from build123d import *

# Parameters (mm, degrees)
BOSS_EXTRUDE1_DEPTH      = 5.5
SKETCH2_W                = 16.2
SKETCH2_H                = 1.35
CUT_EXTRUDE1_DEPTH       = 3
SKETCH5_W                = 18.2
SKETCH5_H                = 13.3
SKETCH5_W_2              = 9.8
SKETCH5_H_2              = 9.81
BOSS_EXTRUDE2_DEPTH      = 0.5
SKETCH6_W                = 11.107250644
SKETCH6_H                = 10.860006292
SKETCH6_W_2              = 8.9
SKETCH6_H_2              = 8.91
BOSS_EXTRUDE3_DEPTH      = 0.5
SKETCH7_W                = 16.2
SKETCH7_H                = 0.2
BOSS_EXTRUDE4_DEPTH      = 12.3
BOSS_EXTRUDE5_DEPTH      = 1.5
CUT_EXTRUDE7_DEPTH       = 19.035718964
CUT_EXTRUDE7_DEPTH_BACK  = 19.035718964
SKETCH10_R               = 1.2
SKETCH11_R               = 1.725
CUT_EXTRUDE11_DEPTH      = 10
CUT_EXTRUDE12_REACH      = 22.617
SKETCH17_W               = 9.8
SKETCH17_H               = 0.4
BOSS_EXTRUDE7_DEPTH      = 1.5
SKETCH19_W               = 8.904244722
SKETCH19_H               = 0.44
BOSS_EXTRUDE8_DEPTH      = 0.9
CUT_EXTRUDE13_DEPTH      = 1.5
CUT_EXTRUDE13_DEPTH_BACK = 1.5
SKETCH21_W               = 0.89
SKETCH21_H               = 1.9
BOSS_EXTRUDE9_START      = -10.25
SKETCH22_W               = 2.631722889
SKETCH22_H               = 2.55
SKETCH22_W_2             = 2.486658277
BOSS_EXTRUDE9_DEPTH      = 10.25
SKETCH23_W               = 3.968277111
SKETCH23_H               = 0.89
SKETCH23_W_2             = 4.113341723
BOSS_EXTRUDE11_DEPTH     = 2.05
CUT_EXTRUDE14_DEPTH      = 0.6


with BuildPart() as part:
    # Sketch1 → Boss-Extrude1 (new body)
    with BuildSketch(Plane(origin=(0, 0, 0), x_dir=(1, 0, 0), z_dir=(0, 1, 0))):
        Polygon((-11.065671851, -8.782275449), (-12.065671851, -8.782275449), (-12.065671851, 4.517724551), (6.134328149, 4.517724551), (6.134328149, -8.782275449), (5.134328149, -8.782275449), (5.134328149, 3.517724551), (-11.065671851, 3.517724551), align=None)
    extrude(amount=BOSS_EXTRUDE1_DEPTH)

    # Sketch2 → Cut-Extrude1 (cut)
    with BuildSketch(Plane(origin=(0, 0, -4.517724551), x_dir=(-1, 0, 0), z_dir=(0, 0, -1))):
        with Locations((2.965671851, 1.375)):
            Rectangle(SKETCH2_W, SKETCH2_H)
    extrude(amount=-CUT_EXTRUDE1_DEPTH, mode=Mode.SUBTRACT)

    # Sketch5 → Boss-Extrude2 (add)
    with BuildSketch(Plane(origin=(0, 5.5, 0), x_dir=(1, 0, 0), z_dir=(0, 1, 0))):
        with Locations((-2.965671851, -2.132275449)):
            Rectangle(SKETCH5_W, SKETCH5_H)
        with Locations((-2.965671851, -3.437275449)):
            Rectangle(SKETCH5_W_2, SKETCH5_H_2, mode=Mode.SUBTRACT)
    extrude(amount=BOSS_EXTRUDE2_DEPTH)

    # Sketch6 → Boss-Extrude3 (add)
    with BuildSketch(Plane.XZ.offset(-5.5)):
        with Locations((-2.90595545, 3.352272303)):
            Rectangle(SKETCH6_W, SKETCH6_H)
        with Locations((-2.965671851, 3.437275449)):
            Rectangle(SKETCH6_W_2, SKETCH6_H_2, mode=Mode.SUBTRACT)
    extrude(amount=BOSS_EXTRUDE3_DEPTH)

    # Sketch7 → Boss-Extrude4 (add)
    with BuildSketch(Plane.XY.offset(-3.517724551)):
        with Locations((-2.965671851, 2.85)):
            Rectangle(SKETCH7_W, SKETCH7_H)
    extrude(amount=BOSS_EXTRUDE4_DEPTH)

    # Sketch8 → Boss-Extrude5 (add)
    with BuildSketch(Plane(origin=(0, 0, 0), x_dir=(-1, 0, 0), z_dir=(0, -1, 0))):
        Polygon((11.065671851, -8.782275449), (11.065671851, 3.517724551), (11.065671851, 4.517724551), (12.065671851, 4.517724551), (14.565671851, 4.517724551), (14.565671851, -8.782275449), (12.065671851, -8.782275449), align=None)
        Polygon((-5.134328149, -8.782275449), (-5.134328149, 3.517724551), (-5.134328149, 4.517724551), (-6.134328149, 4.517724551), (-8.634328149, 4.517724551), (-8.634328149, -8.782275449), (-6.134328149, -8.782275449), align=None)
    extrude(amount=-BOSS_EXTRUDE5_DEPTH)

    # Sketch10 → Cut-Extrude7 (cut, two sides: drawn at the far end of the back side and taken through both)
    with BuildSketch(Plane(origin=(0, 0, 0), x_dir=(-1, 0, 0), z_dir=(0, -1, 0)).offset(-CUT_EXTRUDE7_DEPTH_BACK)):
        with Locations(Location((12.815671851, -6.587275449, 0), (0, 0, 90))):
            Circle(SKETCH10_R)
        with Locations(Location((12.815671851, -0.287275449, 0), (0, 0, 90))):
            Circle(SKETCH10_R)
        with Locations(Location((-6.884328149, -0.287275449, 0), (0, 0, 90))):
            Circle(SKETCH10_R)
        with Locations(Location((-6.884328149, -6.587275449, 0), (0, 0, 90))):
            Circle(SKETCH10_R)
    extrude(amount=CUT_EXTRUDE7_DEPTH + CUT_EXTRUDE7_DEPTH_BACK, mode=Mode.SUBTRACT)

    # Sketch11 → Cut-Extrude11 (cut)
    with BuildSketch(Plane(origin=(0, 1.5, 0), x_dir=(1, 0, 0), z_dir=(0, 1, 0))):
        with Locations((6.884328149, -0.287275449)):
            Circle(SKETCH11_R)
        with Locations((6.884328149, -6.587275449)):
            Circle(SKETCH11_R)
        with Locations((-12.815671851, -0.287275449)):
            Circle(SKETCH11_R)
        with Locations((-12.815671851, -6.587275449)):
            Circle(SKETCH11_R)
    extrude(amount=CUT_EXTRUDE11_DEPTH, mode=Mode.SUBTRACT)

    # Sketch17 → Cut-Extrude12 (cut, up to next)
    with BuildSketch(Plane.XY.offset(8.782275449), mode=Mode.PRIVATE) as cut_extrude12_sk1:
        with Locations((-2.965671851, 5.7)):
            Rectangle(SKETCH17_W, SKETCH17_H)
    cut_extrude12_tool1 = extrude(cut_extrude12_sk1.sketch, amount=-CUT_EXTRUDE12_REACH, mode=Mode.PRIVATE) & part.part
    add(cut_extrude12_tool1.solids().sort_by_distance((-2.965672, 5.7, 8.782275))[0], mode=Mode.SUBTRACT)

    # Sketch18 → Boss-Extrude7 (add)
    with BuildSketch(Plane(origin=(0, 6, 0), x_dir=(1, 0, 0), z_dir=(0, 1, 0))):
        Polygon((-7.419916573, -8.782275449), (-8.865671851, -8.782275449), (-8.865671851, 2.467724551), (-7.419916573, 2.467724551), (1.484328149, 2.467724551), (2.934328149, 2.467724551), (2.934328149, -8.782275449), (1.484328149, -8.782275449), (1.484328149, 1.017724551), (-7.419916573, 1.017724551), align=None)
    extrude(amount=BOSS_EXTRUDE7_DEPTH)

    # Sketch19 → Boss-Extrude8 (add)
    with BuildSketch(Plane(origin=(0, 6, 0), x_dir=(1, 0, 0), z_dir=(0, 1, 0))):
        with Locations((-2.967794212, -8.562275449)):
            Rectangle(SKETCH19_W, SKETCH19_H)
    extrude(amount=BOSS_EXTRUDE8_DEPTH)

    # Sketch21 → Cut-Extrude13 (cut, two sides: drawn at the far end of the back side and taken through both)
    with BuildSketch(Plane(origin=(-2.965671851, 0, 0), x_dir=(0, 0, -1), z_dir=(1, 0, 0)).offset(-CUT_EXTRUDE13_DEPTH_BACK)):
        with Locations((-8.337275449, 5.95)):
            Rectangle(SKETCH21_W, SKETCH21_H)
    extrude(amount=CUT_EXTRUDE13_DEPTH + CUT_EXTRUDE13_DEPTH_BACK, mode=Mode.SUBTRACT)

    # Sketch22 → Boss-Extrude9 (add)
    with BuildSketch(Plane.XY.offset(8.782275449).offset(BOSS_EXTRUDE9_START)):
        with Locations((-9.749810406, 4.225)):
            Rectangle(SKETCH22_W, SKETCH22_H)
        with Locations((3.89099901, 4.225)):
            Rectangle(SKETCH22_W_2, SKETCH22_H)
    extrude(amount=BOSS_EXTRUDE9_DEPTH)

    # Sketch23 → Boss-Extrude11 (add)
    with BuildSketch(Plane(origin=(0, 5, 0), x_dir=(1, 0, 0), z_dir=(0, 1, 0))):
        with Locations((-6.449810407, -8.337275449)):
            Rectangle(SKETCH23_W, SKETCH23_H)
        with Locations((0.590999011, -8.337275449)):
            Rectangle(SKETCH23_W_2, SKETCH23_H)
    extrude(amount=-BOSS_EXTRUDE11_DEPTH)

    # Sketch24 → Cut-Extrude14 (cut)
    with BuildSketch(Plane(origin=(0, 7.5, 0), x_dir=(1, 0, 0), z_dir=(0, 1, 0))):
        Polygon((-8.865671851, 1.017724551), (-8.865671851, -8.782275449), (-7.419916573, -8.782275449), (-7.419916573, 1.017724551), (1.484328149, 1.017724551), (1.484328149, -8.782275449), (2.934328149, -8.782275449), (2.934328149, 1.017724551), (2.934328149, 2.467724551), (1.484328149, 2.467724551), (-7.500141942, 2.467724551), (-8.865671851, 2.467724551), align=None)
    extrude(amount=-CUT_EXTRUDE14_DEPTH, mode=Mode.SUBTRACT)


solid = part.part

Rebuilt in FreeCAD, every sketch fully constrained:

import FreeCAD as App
import Part
import Sketcher

doc = App.newDocument("Part")
body = doc.addObject("PartDesign::Body", "Body")

sketch1 = body.newObject("Sketcher::SketchObject", "Sketch")
sketch1.AttachmentSupport = (doc.getObject("XZ_Plane"), [""])
sketch1.MapMode = "FlatFace"
sketch1.addGeometry([
    Part.LineSegment(App.Vector(-12.1, 8.8, 0), App.Vector(-11.1, 8.8, 0)),
    Part.LineSegment(App.Vector(-11.1, 8.8, 0), App.Vector(-11.1, -3.5, 0)),
    Part.LineSegment(App.Vector(-11.1, -3.5, 0), App.Vector(5.1, -3.5, 0)),
    Part.LineSegment(App.Vector(5.1, -3.5, 0), App.Vector(5.1, 8.8, 0)),
    Part.LineSegment(App.Vector(5.1, 8.8, 0), App.Vector(6.1, 8.8, 0)),
    Part.LineSegment(App.Vector(6.1, 8.8, 0), App.Vector(6.1, -4.5, 0)),
    Part.LineSegment(App.Vector(6.1, -4.5, 0), App.Vector(-12.1, -4.5, 0)),
    Part.LineSegment(App.Vector(-12.1, -4.5, 0), App.Vector(-12.1, 8.8, 0)),
], False)
sketch1.addConstraint([
    Sketcher.Constraint("Coincident", 0, 2, 1, 1),
    Sketcher.Constraint("Coincident", 1, 2, 2, 1),
    Sketcher.Constraint("Coincident", 2, 2, 3, 1),
    Sketcher.Constraint("Coincident", 3, 2, 4, 1),
    Sketcher.Constraint("Coincident", 4, 2, 5, 1),
    Sketcher.Constraint("Coincident", 5, 2, 6, 1),
    Sketcher.Constraint("Coincident", 6, 2, 7, 1),
    Sketcher.Constraint("Coincident", 7, 2, 0, 1),
    Sketcher.Constraint("Horizontal", 0),
    Sketcher.Constraint("Vertical", 1),
    Sketcher.Constraint("Horizontal", 2),
    Sketcher.Constraint("Vertical", 3),
    Sketcher.Constraint("Horizontal", 4),
    Sketcher.Constraint("Vertical", 5),
    Sketcher.Constraint("Horizontal", 6),
    Sketcher.Constraint("Vertical", 7),
    Sketcher.Constraint("Horizontal", 0, 2, 3, 2),
    Sketcher.Constraint("Equal", 0, 4),
    Sketcher.Constraint("DistanceX", 0, 1, 0, 2, 1.0),
    Sketcher.Constraint("DistanceX", 2, 1, 2, 2, 16.2),
    Sketcher.Constraint("DistanceY", 1, 2, 1, 1, 12.3),
    Sketcher.Constraint("DistanceY", 5, 2, 5, 1, 13.3),
    Sketcher.Constraint("DistanceX", 0, 2, -1, 1, 11.065672),
    Sketcher.Constraint("DistanceY", -1, 1, 0, 2, 8.782275),
])
pad1 = body.newObject("PartDesign::Pad", "Pad")
pad1.Profile = sketch1
pad1.Length = 5.5
pad1.Reversed = True

sketch2 = body.newObject("Sketcher::SketchObject", "Sketch001")
sketch2.AttachmentSupport = (doc.getObject("XY_Plane"), [""])
sketch2.MapMode = "FlatFace"
sketch2.AttachmentOffset = App.Placement(App.Vector(0, 0, -4.517725), App.Rotation())
sketch2.addGeometry([
    Part.LineSegment(App.Vector(5.1, 2, 0), App.Vector(5.1, 0.7, 0)),
    Part.LineSegment(App.Vector(5.1, 0.7, 0), App.Vector(-11.1, 0.7, 0)),
    Part.LineSegment(App.Vector(-11.1, 0.7, 0), App.Vector(-11.1, 2, 0)),
    Part.LineSegment(App.Vector(-11.1, 2, 0), App.Vector(5.1, 2, 0)),
], False)
sketch2.addConstraint([
    Sketcher.Constraint("Coincident", 0, 2, 1, 1),
    Sketcher.Constraint("Coincident", 1, 2, 2, 1),
    Sketcher.Constraint("Coincident", 2, 2, 3, 1),
    Sketcher.Constraint("Coincident", 3, 2, 0, 1),
    Sketcher.Constraint("Vertical", 0),
    Sketcher.Constraint("Horizontal", 1),
    Sketcher.Constraint("Vertical", 2),
    Sketcher.Constraint("Horizontal", 3),
    Sketcher.Constraint("DistanceX", 1, 2, 1, 1, 16.2),
    Sketcher.Constraint("DistanceY", 0, 2, 0, 1, 1.35),
    Sketcher.Constraint("DistanceY", -1, 1, 0, 2, 0.7),
    Sketcher.Constraint("DistanceX", -1, 1, 0, 2, 5.134328),
])
pocket1 = body.newObject("PartDesign::Pocket", "Pocket")
pocket1.Profile = sketch2
pocket1.Length = 3
pocket1.Reversed = True

sketch3 = body.newObject("Sketcher::SketchObject", "Sketch002")
sketch3.AttachmentSupport = (doc.getObject("XZ_Plane"), [""])
sketch3.MapMode = "FlatFace"
sketch3.AttachmentOffset = App.Placement(App.Vector(0, 0, -5.5), App.Rotation())
sketch3.addGeometry([
    Part.LineSegment(App.Vector(-12, -5, 0), App.Vector(-12, 9, 0)),
    Part.LineSegment(App.Vector(-12, 9, 0), App.Vector(6, 9, 0)),
    Part.LineSegment(App.Vector(6, 9, 0), App.Vector(6, -5, 0)),
    Part.LineSegment(App.Vector(6, -5, 0), App.Vector(-12, -5, 0)),
    Part.LineSegment(App.Vector(2, 8, 0), App.Vector(-8, 8, 0)),
    Part.LineSegment(App.Vector(-8, 8, 0), App.Vector(-8, -1, 0)),
    Part.LineSegment(App.Vector(-8, -1, 0), App.Vector(2, -1, 0)),
    Part.LineSegment(App.Vector(2, -1, 0), App.Vector(2, 8, 0)),
], False)
sketch3.addConstraint([
    Sketcher.Constraint("Coincident", 0, 2, 1, 1),
    Sketcher.Constraint("Coincident", 1, 2, 2, 1),
    Sketcher.Constraint("Coincident", 2, 2, 3, 1),
    Sketcher.Constraint("Coincident", 3, 2, 0, 1),
    Sketcher.Constraint("Coincident", 4, 2, 5, 1),
    Sketcher.Constraint("Coincident", 5, 2, 6, 1),
    Sketcher.Constraint("Coincident", 6, 2, 7, 1),
    Sketcher.Constraint("Coincident", 7, 2, 4, 1),
    Sketcher.Constraint("Vertical", 0),
    Sketcher.Constraint("Horizontal", 1),
    Sketcher.Constraint("Vertical", 2),
    Sketcher.Constraint("Horizontal", 3),
    Sketcher.Constraint("Horizontal", 4),
    Sketcher.Constraint("Vertical", 5),
    Sketcher.Constraint("Horizontal", 6),
    Sketcher.Constraint("Vertical", 7),
    Sketcher.Constraint("DistanceX", 1, 1, 1, 2, 18.2),
    Sketcher.Constraint("DistanceX", 4, 2, 4, 1, 9.8),
    Sketcher.Constraint("DistanceY", 0, 1, 0, 2, 13.3),
    Sketcher.Constraint("DistanceX", 4, 2, 1, 2, 14.0),
    Sketcher.Constraint("DistanceY", 5, 2, 5, 1, 9.81),
    Sketcher.Constraint("DistanceY", 4, 2, 0, 2, 0.44),
    Sketcher.Constraint("DistanceX", 0, 2, -1, 1, 12.065672),
    Sketcher.Constraint("DistanceY", -1, 1, 0, 2, 8.782275),
])
pad2 = body.newObject("PartDesign::Pad", "Pad001")
pad2.Profile = sketch3
pad2.Length = 0.5
pad2.Reversed = True

sketch4 = body.newObject("Sketcher::SketchObject", "Sketch003")
sketch4.AttachmentSupport = (doc.getObject("XZ_Plane"), [""])
sketch4.MapMode = "FlatFace"
sketch4.AttachmentOffset = App.Placement(App.Vector(0, 0, -5.5), App.Rotation())
sketch4.addGeometry([
    Part.LineSegment(App.Vector(-8, 9, 0), App.Vector(-8, -2, 0)),
    Part.LineSegment(App.Vector(-8, -2, 0), App.Vector(3, -2, 0)),
    Part.LineSegment(App.Vector(3, -2, 0), App.Vector(3, 9, 0)),
    Part.LineSegment(App.Vector(3, 9, 0), App.Vector(-8, 9, 0)),
    Part.LineSegment(App.Vector(1, -1, 0), App.Vector(-7, -1, 0)),
    Part.LineSegment(App.Vector(-7, -1, 0), App.Vector(-7, 8, 0)),
    Part.LineSegment(App.Vector(-7, 8, 0), App.Vector(1, 8, 0)),
    Part.LineSegment(App.Vector(1, 8, 0), App.Vector(1, -1, 0)),
], False)
sketch4.addConstraint([
    Sketcher.Constraint("Coincident", 0, 2, 1, 1),
    Sketcher.Constraint("Coincident", 1, 2, 2, 1),
    Sketcher.Constraint("Coincident", 2, 2, 3, 1),
    Sketcher.Constraint("Coincident", 3, 2, 0, 1),
    Sketcher.Constraint("Coincident", 4, 2, 5, 1),
    Sketcher.Constraint("Coincident", 5, 2, 6, 1),
    Sketcher.Constraint("Coincident", 6, 2, 7, 1),
    Sketcher.Constraint("Coincident", 7, 2, 4, 1),
    Sketcher.Constraint("Vertical", 0),
    Sketcher.Constraint("Horizontal", 1),
    Sketcher.Constraint("Vertical", 2),
    Sketcher.Constraint("Horizontal", 3),
    Sketcher.Constraint("Horizontal", 4),
    Sketcher.Constraint("Vertical", 5),
    Sketcher.Constraint("Horizontal", 6),
    Sketcher.Constraint("Vertical", 7),
    Sketcher.Constraint("DistanceX", 4, 2, 4, 1, 8.9),
    Sketcher.Constraint("DistanceY", 5, 1, 5, 2, 8.91),
    Sketcher.Constraint("DistanceY", 4, 2, 3, 2, 9.8),
    Sketcher.Constraint("DistanceX", 1, 1, 1, 2, 11.107251),
    Sketcher.Constraint("DistanceY", 0, 2, 0, 1, 10.860006),
    Sketcher.Constraint("DistanceX", 0, 2, -1, 1, 8.459581),
    Sketcher.Constraint("DistanceY", 0, 2, -1, 1, 2.077731),
    Sketcher.Constraint("DistanceX", 4, 2, -1, 1, 7.415672),
])
pad3 = body.newObject("PartDesign::Pad", "Pad002")
pad3.Profile = sketch4
pad3.Length = 0.5

sketch5 = body.newObject("Sketcher::SketchObject", "Sketch004")
sketch5.AttachmentSupport = (doc.getObject("XY_Plane"), [""])
sketch5.MapMode = "FlatFace"
sketch5.AttachmentOffset = App.Placement(App.Vector(0, 0, -3.517725), App.Rotation())
sketch5.addGeometry([
    Part.LineSegment(App.Vector(-11.07, 2.95, 0), App.Vector(-11.07, 2.75, 0)),
    Part.LineSegment(App.Vector(-11.07, 2.75, 0), App.Vector(5.13, 2.75, 0)),
    Part.LineSegment(App.Vector(5.13, 2.75, 0), App.Vector(5.13, 2.95, 0)),
    Part.LineSegment(App.Vector(5.13, 2.95, 0), App.Vector(-11.07, 2.95, 0)),
], False)
sketch5.addConstraint([
    Sketcher.Constraint("Coincident", 0, 2, 1, 1),
    Sketcher.Constraint("Coincident", 1, 2, 2, 1),
    Sketcher.Constraint("Coincident", 2, 2, 3, 1),
    Sketcher.Constraint("Coincident", 3, 2, 0, 1),
    Sketcher.Constraint("Vertical", 0),
    Sketcher.Constraint("Horizontal", 1),
    Sketcher.Constraint("Vertical", 2),
    Sketcher.Constraint("Horizontal", 3),
    Sketcher.Constraint("DistanceX", 1, 1, 1, 2, 16.2),
    Sketcher.Constraint("DistanceY", 0, 2, 0, 1, 0.2),
    Sketcher.Constraint("DistanceY", -1, 1, 0, 2, 2.75),
    Sketcher.Constraint("DistanceX", 0, 2, -1, 1, 11.065672),
])
pad4 = body.newObject("PartDesign::Pad", "Pad003")
pad4.Profile = sketch5
pad4.Length = 12.3

sketch6 = body.newObject("Sketcher::SketchObject", "Sketch005")
sketch6.AttachmentSupport = (doc.getObject("XZ_Plane"), [""])
sketch6.MapMode = "FlatFace"
sketch6.addGeometry([
    Part.LineSegment(App.Vector(-11.1, -4.5, 0), App.Vector(-11.1, 8.8, 0)),
    Part.LineSegment(App.Vector(-11.1, 8.8, 0), App.Vector(-14.6, 8.8, 0)),
    Part.LineSegment(App.Vector(-14.6, 8.8, 0), App.Vector(-14.6, -4.5, 0)),
    Part.LineSegment(App.Vector(-14.6, -4.5, 0), App.Vector(-11.1, -4.5, 0)),
    Part.LineSegment(App.Vector(5.1, 8.8, 0), App.Vector(5.1, -4.5, 0)),
    Part.LineSegment(App.Vector(5.1, -4.5, 0), App.Vector(8.6, -4.5, 0)),
    Part.LineSegment(App.Vector(8.6, -4.5, 0), App.Vector(8.6, 8.8, 0)),
    Part.LineSegment(App.Vector(8.6, 8.8, 0), App.Vector(5.1, 8.8, 0)),
], False)
sketch6.addConstraint([
    Sketcher.Constraint("Coincident", 0, 2, 1, 1),
    Sketcher.Constraint("Coincident", 1, 2, 2, 1),
    Sketcher.Constraint("Coincident", 2, 2, 3, 1),
    Sketcher.Constraint("Coincident", 3, 2, 0, 1),
    Sketcher.Constraint("Coincident", 4, 2, 5, 1),
    Sketcher.Constraint("Coincident", 5, 2, 6, 1),
    Sketcher.Constraint("Coincident", 6, 2, 7, 1),
    Sketcher.Constraint("Coincident", 7, 2, 4, 1),
    Sketcher.Constraint("Vertical", 0),
    Sketcher.Constraint("Horizontal", 1),
    Sketcher.Constraint("Vertical", 2),
    Sketcher.Constraint("Horizontal", 3),
    Sketcher.Constraint("Vertical", 4),
    Sketcher.Constraint("Horizontal", 5),
    Sketcher.Constraint("Vertical", 6),
    Sketcher.Constraint("Horizontal", 7),
    Sketcher.Constraint("Horizontal", 3, 2, 4, 2),
    Sketcher.Constraint("Horizontal", 1, 2, 6, 2),
    Sketcher.Constraint("Equal", 3, 5),
    Sketcher.Constraint("DistanceX", 1, 2, 1, 1, 3.5),
    Sketcher.Constraint("DistanceY", 0, 1, 0, 2, 13.3),
    Sketcher.Constraint("DistanceX", 3, 2, 4, 2, 16.2),
    Sketcher.Constraint("DistanceX", 0, 2, -1, 1, 11.065672),
    Sketcher.Constraint("DistanceY", -1, 1, 0, 2, 8.782275),
])
pad5 = body.newObject("PartDesign::Pad", "Pad004")
pad5.Profile = sketch6
pad5.Length = 1.5
pad5.Reversed = True

sketch7 = body.newObject("Sketcher::SketchObject", "Sketch006")
sketch7.AttachmentSupport = (doc.getObject("XZ_Plane"), [""])
sketch7.MapMode = "FlatFace"
sketch7.addGeometry([
    Part.Circle(App.Vector(-12.8, 6.6, 0), App.Vector(0, 0, 1), 1.2),
    Part.Circle(App.Vector(-12.8, 0.3, 0), App.Vector(0, 0, 1), 1.2),
    Part.Circle(App.Vector(6.9, 0.3, 0), App.Vector(0, 0, 1), 1.2),
    Part.Circle(App.Vector(6.9, 6.6, 0), App.Vector(0, 0, 1), 1.2),
], False)
sketch7.addConstraint([
    Sketcher.Constraint("Equal", 0, 1),
    Sketcher.Constraint("Equal", 1, 2),
    Sketcher.Constraint("Equal", 2, 3),
    Sketcher.Constraint("Horizontal", 1, 3, 2, 3),
    Sketcher.Constraint("Horizontal", 0, 3, 3, 3),
    Sketcher.Constraint("Vertical", 0, 3, 1, 3),
    Sketcher.Constraint("Vertical", 2, 3, 3, 3),
    Sketcher.Constraint("Diameter", 0, 2.4),
    Sketcher.Constraint("DistanceY", 1, 3, 0, 3, 6.3),
    Sketcher.Constraint("DistanceX", 1, 3, 2, 3, 19.7),
    Sketcher.Constraint("DistanceX", 0, 3, -1, 1, 12.815672),
    Sketcher.Constraint("DistanceY", -1, 1, 0, 3, 6.587275),
])
pocket2 = body.newObject("PartDesign::Pocket", "Pocket001")
pocket2.Profile = sketch7
pocket2.Type = "ThroughAll"
pocket2.Midplane = True

sketch8 = body.newObject("Sketcher::SketchObject", "Sketch007")
sketch8.AttachmentSupport = (doc.getObject("XZ_Plane"), [""])
sketch8.MapMode = "FlatFace"
sketch8.AttachmentOffset = App.Placement(App.Vector(0, 0, -1.5), App.Rotation())
sketch8.addGeometry([
    Part.Circle(App.Vector(6.9, 0.3, 0), App.Vector(0, 0, 1), 1.7),
    Part.Circle(App.Vector(6.9, 6.6, 0), App.Vector(0, 0, 1), 1.7),
    Part.Circle(App.Vector(-12.8, 0.3, 0), App.Vector(0, 0, 1), 1.7),
    Part.Circle(App.Vector(-12.8, 6.6, 0), App.Vector(0, 0, 1), 1.7),
], False)
sketch8.addConstraint([
    Sketcher.Constraint("Equal", 0, 1),
    Sketcher.Constraint("Equal", 1, 2),
    Sketcher.Constraint("Equal", 2, 3),
    Sketcher.Constraint("Horizontal", 0, 3, 2, 3),
    Sketcher.Constraint("Horizontal", 1, 3, 3, 3),
    Sketcher.Constraint("Vertical", 0, 3, 1, 3),
    Sketcher.Constraint("Vertical", 2, 3, 3, 3),
    Sketcher.Constraint("Diameter", 0, 3.45),
    Sketcher.Constraint("DistanceY", 0, 3, 1, 3, 6.3),
    Sketcher.Constraint("DistanceX", 2, 3, 0, 3, 19.7),
    Sketcher.Constraint("DistanceX", -1, 1, 0, 3, 6.884328),
    Sketcher.Constraint("DistanceY", -1, 1, 0, 3, 0.287275),
])
pocket3 = body.newObject("PartDesign::Pocket", "Pocket002")
pocket3.Profile = sketch8
pocket3.Length = 10

sketch9 = body.newObject("Sketcher::SketchObject", "Sketch008")
sketch9.AttachmentSupport = (doc.getObject("XY_Plane"), [""])
sketch9.MapMode = "FlatFace"
sketch9.AttachmentOffset = App.Placement(App.Vector(0, 0, 8.782275), App.Rotation())
sketch9.addGeometry([
    Part.LineSegment(App.Vector(-7.87, 5.9, 0), App.Vector(-7.87, 5.5, 0)),
    Part.LineSegment(App.Vector(-7.87, 5.5, 0), App.Vector(1.93, 5.5, 0)),
    Part.LineSegment(App.Vector(1.93, 5.5, 0), App.Vector(1.93, 5.9, 0)),
    Part.LineSegment(App.Vector(1.93, 5.9, 0), App.Vector(-7.87, 5.9, 0)),
], False)
sketch9.addConstraint([
    Sketcher.Constraint("Coincident", 0, 2, 1, 1),
    Sketcher.Constraint("Coincident", 1, 2, 2, 1),
    Sketcher.Constraint("Coincident", 2, 2, 3, 1),
    Sketcher.Constraint("Coincident", 3, 2, 0, 1),
    Sketcher.Constraint("Vertical", 0),
    Sketcher.Constraint("Horizontal", 1),
    Sketcher.Constraint("Vertical", 2),
    Sketcher.Constraint("Horizontal", 3),
    Sketcher.Constraint("DistanceX", 1, 1, 1, 2, 9.8),
    Sketcher.Constraint("DistanceY", 0, 2, 0, 1, 0.4),
    Sketcher.Constraint("DistanceY", -1, 1, 0, 2, 5.5),
    Sketcher.Constraint("DistanceX", 0, 2, -1, 1, 7.865672),
])
pocket4 = body.newObject("PartDesign::Pocket", "Pocket003")
pocket4.Profile = sketch9
pocket4.Type = "UpToFirst"

sketch10 = body.newObject("Sketcher::SketchObject", "Sketch009")
sketch10.AttachmentSupport = (doc.getObject("XZ_Plane"), [""])
sketch10.MapMode = "FlatFace"
sketch10.AttachmentOffset = App.Placement(App.Vector(0, 0, -6), App.Rotation())
sketch10.addGeometry([
    Part.LineSegment(App.Vector(-8.9, 8.8, 0), App.Vector(-7.4, 8.8, 0)),
    Part.LineSegment(App.Vector(-7.4, 8.8, 0), App.Vector(-7.4, -1, 0)),
    Part.LineSegment(App.Vector(-7.4, -1, 0), App.Vector(1.5, -1, 0)),
    Part.LineSegment(App.Vector(1.5, -1, 0), App.Vector(1.5, 8.8, 0)),
    Part.LineSegment(App.Vector(1.5, 8.8, 0), App.Vector(2.9, 8.8, 0)),
    Part.LineSegment(App.Vector(2.9, 8.8, 0), App.Vector(2.9, -2.5, 0)),
    Part.LineSegment(App.Vector(2.9, -2.5, 0), App.Vector(-8.9, -2.5, 0)),
    Part.LineSegment(App.Vector(-8.9, -2.5, 0), App.Vector(-8.9, 8.8, 0)),
], False)
sketch10.addConstraint([
    Sketcher.Constraint("Coincident", 0, 2, 1, 1),
    Sketcher.Constraint("Coincident", 1, 2, 2, 1),
    Sketcher.Constraint("Coincident", 2, 2, 3, 1),
    Sketcher.Constraint("Coincident", 3, 2, 4, 1),
    Sketcher.Constraint("Coincident", 4, 2, 5, 1),
    Sketcher.Constraint("Coincident", 5, 2, 6, 1),
    Sketcher.Constraint("Coincident", 6, 2, 7, 1),
    Sketcher.Constraint("Coincident", 7, 2, 0, 1),
    Sketcher.Constraint("Horizontal", 0),
    Sketcher.Constraint("Vertical", 1),
    Sketcher.Constraint("Horizontal", 2),
    Sketcher.Constraint("Vertical", 3),
    Sketcher.Constraint("Horizontal", 4),
    Sketcher.Constraint("Vertical", 5),
    Sketcher.Constraint("Horizontal", 6),
    Sketcher.Constraint("Vertical", 7),
    Sketcher.Constraint("Horizontal", 0, 2, 3, 2),
    Sketcher.Constraint("DistanceX", 6, 2, 6, 1, 11.8),
    Sketcher.Constraint("DistanceY", 1, 2, 1, 1, 9.8),
    Sketcher.Constraint("DistanceX", 4, 1, 4, 2, 1.45),
    Sketcher.Constraint("DistanceY", 5, 2, 5, 1, 11.25),
    Sketcher.Constraint("DistanceX", 0, 1, 0, 2, 1.445755),
    Sketcher.Constraint("DistanceX", -1, 1, 2, 2, 1.484328),
    Sketcher.Constraint("DistanceY", -1, 1, 0, 2, 8.782275),
])
pad6 = body.newObject("PartDesign::Pad", "Pad005")
pad6.Profile = sketch10
pad6.Length = 1.5
pad6.Reversed = True

sketch11 = body.newObject("Sketcher::SketchObject", "Sketch010")
sketch11.AttachmentSupport = (doc.getObject("XZ_Plane"), [""])
sketch11.MapMode = "FlatFace"
sketch11.AttachmentOffset = App.Placement(App.Vector(0, 0, -6), App.Rotation())
sketch11.addGeometry([
    Part.LineSegment(App.Vector(-7.42, 8.34, 0), App.Vector(-7.42, 8.78, 0)),
    Part.LineSegment(App.Vector(-7.42, 8.78, 0), App.Vector(1.48, 8.78, 0)),
    Part.LineSegment(App.Vector(1.48, 8.78, 0), App.Vector(1.48, 8.34, 0)),
    Part.LineSegment(App.Vector(1.48, 8.34, 0), App.Vector(-7.42, 8.34, 0)),
], False)
sketch11.addConstraint([
    Sketcher.Constraint("Coincident", 0, 2, 1, 1),
    Sketcher.Constraint("Coincident", 1, 2, 2, 1),
    Sketcher.Constraint("Coincident", 2, 2, 3, 1),
    Sketcher.Constraint("Coincident", 3, 2, 0, 1),
    Sketcher.Constraint("Vertical", 0),
    Sketcher.Constraint("Horizontal", 1),
    Sketcher.Constraint("Vertical", 2),
    Sketcher.Constraint("Horizontal", 3),
    Sketcher.Constraint("DistanceY", 0, 1, 0, 2, 0.44),
    Sketcher.Constraint("DistanceX", 1, 1, 1, 2, 8.904245),
    Sketcher.Constraint("DistanceX", -1, 1, 1, 2, 1.484328),
    Sketcher.Constraint("DistanceY", -1, 1, 0, 2, 8.782275),
])
pad7 = body.newObject("PartDesign::Pad", "Pad006")
pad7.Profile = sketch11
pad7.Length = 0.9
pad7.Reversed = True

sketch12 = body.newObject("Sketcher::SketchObject", "Sketch011")
sketch12.AttachmentSupport = (doc.getObject("YZ_Plane"), [""])
sketch12.MapMode = "FlatFace"
sketch12.AttachmentOffset = App.Placement(App.Vector(0, 0, -2.965672), App.Rotation())
sketch12.addGeometry([
    Part.LineSegment(App.Vector(6.9, 8.8, 0), App.Vector(5, 8.8, 0)),
    Part.LineSegment(App.Vector(5, 8.8, 0), App.Vector(5, 7.9, 0)),
    Part.LineSegment(App.Vector(5, 7.9, 0), App.Vector(6.9, 7.9, 0)),
    Part.LineSegment(App.Vector(6.9, 7.9, 0), App.Vector(6.9, 8.8, 0)),
], False)
sketch12.addConstraint([
    Sketcher.Constraint("Coincident", 0, 2, 1, 1),
    Sketcher.Constraint("Coincident", 1, 2, 2, 1),
    Sketcher.Constraint("Coincident", 2, 2, 3, 1),
    Sketcher.Constraint("Coincident", 3, 2, 0, 1),
    Sketcher.Constraint("Horizontal", 0),
    Sketcher.Constraint("Vertical", 1),
    Sketcher.Constraint("Horizontal", 2),
    Sketcher.Constraint("Vertical", 3),
    Sketcher.Constraint("DistanceX", 0, 2, 0, 1, 1.9),
    Sketcher.Constraint("DistanceX", -1, 1, 0, 2, 5.0),
    Sketcher.Constraint("DistanceY", 1, 2, 1, 1, 0.89),
    Sketcher.Constraint("DistanceY", -1, 1, 0, 2, 8.782275),
])
pocket5 = body.newObject("PartDesign::Pocket", "Pocket004")
pocket5.Profile = sketch12
pocket5.Type = "TwoLengths"
pocket5.Length = 1.5
pocket5.Length2 = 1.5
pocket5.Reversed = True

sketch13 = body.newObject("Sketcher::SketchObject", "Sketch012")
sketch13.AttachmentSupport = (doc.getObject("XY_Plane"), [""])
sketch13.MapMode = "FlatFace"
sketch13.AttachmentOffset = App.Placement(App.Vector(0, 0, -1.467725), App.Rotation())
sketch13.addGeometry([
    Part.LineSegment(App.Vector(-11.1, 5.5, 0), App.Vector(-11.1, 3, 0)),
    Part.LineSegment(App.Vector(-11.1, 3, 0), App.Vector(-8.4, 3, 0)),
    Part.LineSegment(App.Vector(-8.4, 3, 0), App.Vector(-8.4, 5.5, 0)),
    Part.LineSegment(App.Vector(-8.4, 5.5, 0), App.Vector(-11.1, 5.5, 0)),
    Part.LineSegment(App.Vector(2.6, 5.5, 0), App.Vector(2.6, 3, 0)),
    Part.LineSegment(App.Vector(2.6, 3, 0), App.Vector(5.1, 3, 0)),
    Part.LineSegment(App.Vector(5.1, 3, 0), App.Vector(5.1, 5.5, 0)),
    Part.LineSegment(App.Vector(5.1, 5.5, 0), App.Vector(2.6, 5.5, 0)),
], False)
sketch13.addConstraint([
    Sketcher.Constraint("Coincident", 0, 2, 1, 1),
    Sketcher.Constraint("Coincident", 1, 2, 2, 1),
    Sketcher.Constraint("Coincident", 2, 2, 3, 1),
    Sketcher.Constraint("Coincident", 3, 2, 0, 1),
    Sketcher.Constraint("Coincident", 4, 2, 5, 1),
    Sketcher.Constraint("Coincident", 5, 2, 6, 1),
    Sketcher.Constraint("Coincident", 6, 2, 7, 1),
    Sketcher.Constraint("Coincident", 7, 2, 4, 1),
    Sketcher.Constraint("Vertical", 0),
    Sketcher.Constraint("Horizontal", 1),
    Sketcher.Constraint("Vertical", 2),
    Sketcher.Constraint("Horizontal", 3),
    Sketcher.Constraint("Vertical", 4),
    Sketcher.Constraint("Horizontal", 5),
    Sketcher.Constraint("Vertical", 6),
    Sketcher.Constraint("Horizontal", 7),
    Sketcher.Constraint("Horizontal", 1, 2, 4, 2),
    Sketcher.Constraint("Horizontal", 3, 2, 6, 2),
    Sketcher.Constraint("DistanceY", 0, 2, 0, 1, 2.55),
    Sketcher.Constraint("DistanceY", -1, 1, 2, 2, 5.5),
    Sketcher.Constraint("DistanceX", 0, 2, 5, 2, 16.2),
    Sketcher.Constraint("DistanceX", 5, 1, 5, 2, 2.486658),
    Sketcher.Constraint("DistanceX", 1, 1, 1, 2, 2.631723),
    Sketcher.Constraint("DistanceX", 0, 2, -1, 1, 11.065672),
])
pad8 = body.newObject("PartDesign::Pad", "Pad007")
pad8.Profile = sketch13
pad8.Length = 10.25

sketch14 = body.newObject("Sketcher::SketchObject", "Sketch013")
sketch14.AttachmentSupport = (doc.getObject("XZ_Plane"), [""])
sketch14.MapMode = "FlatFace"
sketch14.AttachmentOffset = App.Placement(App.Vector(0, 0, -5), App.Rotation())
sketch14.addGeometry([
    Part.LineSegment(App.Vector(-8.4, 7.9, 0), App.Vector(-8.4, 8.8, 0)),
    Part.LineSegment(App.Vector(-8.4, 8.8, 0), App.Vector(-4.5, 8.8, 0)),
    Part.LineSegment(App.Vector(-4.5, 8.8, 0), App.Vector(-4.5, 7.9, 0)),
    Part.LineSegment(App.Vector(-4.5, 7.9, 0), App.Vector(-8.4, 7.9, 0)),
    Part.LineSegment(App.Vector(-1.5, 7.9, 0), App.Vector(-1.5, 8.8, 0)),
    Part.LineSegment(App.Vector(-1.5, 8.8, 0), App.Vector(2.6, 8.8, 0)),
    Part.LineSegment(App.Vector(2.6, 8.8, 0), App.Vector(2.6, 7.9, 0)),
    Part.LineSegment(App.Vector(2.6, 7.9, 0), App.Vector(-1.5, 7.9, 0)),
], False)
sketch14.addConstraint([
    Sketcher.Constraint("Coincident", 0, 2, 1, 1),
    Sketcher.Constraint("Coincident", 1, 2, 2, 1),
    Sketcher.Constraint("Coincident", 2, 2, 3, 1),
    Sketcher.Constraint("Coincident", 3, 2, 0, 1),
    Sketcher.Constraint("Coincident", 4, 2, 5, 1),
    Sketcher.Constraint("Coincident", 5, 2, 6, 1),
    Sketcher.Constraint("Coincident", 6, 2, 7, 1),
    Sketcher.Constraint("Coincident", 7, 2, 4, 1),
    Sketcher.Constraint("Vertical", 0),
    Sketcher.Constraint("Horizontal", 1),
    Sketcher.Constraint("Vertical", 2),
    Sketcher.Constraint("Horizontal", 3),
    Sketcher.Constraint("Vertical", 4),
    Sketcher.Constraint("Horizontal", 5),
    Sketcher.Constraint("Vertical", 6),
    Sketcher.Constraint("Horizontal", 7),
    Sketcher.Constraint("Horizontal", 1, 2, 4, 2),
    Sketcher.Constraint("Horizontal", 3, 2, 6, 2),
    Sketcher.Constraint("DistanceX", 1, 2, 4, 2, 3.0),
    Sketcher.Constraint("DistanceY", 0, 1, 0, 2, 0.89),
    Sketcher.Constraint("DistanceX", 5, 1, 5, 2, 4.113342),
    Sketcher.Constraint("DistanceX", 1, 1, 1, 2, 3.968277),
    Sketcher.Constraint("DistanceX", 0, 2, -1, 1, 8.433949),
    Sketcher.Constraint("DistanceY", -1, 1, 0, 2, 8.782275),
])
pad9 = body.newObject("PartDesign::Pad", "Pad008")
pad9.Profile = sketch14
pad9.Length = 2.05

sketch15 = body.newObject("Sketcher::SketchObject", "Sketch014")
sketch15.AttachmentSupport = (doc.getObject("XZ_Plane"), [""])
sketch15.MapMode = "FlatFace"
sketch15.AttachmentOffset = App.Placement(App.Vector(0, 0, -7.5), App.Rotation())
sketch15.addGeometry([
    Part.LineSegment(App.Vector(-8.9, 8.8, 0), App.Vector(-7.4, 8.8, 0)),
    Part.LineSegment(App.Vector(-7.4, 8.8, 0), App.Vector(-7.4, -1, 0)),
    Part.LineSegment(App.Vector(-7.4, -1, 0), App.Vector(1.5, -1, 0)),
    Part.LineSegment(App.Vector(1.5, -1, 0), App.Vector(1.5, 8.8, 0)),
    Part.LineSegment(App.Vector(1.5, 8.8, 0), App.Vector(2.9, 8.8, 0)),
    Part.LineSegment(App.Vector(2.9, 8.8, 0), App.Vector(2.9, -2.5, 0)),
    Part.LineSegment(App.Vector(2.9, -2.5, 0), App.Vector(-8.9, -2.5, 0)),
    Part.LineSegment(App.Vector(-8.9, -2.5, 0), App.Vector(-8.9, 8.8, 0)),
], False)
sketch15.addConstraint([
    Sketcher.Constraint("Coincident", 0, 2, 1, 1),
    Sketcher.Constraint("Coincident", 1, 2, 2, 1),
    Sketcher.Constraint("Coincident", 2, 2, 3, 1),
    Sketcher.Constraint("Coincident", 3, 2, 4, 1),
    Sketcher.Constraint("Coincident", 4, 2, 5, 1),
    Sketcher.Constraint("Coincident", 5, 2, 6, 1),
    Sketcher.Constraint("Coincident", 6, 2, 7, 1),
    Sketcher.Constraint("Coincident", 7, 2, 0, 1),
    Sketcher.Constraint("Horizontal", 0),
    Sketcher.Constraint("Vertical", 1),
    Sketcher.Constraint("Horizontal", 2),
    Sketcher.Constraint("Vertical", 3),
    Sketcher.Constraint("Horizontal", 4),
    Sketcher.Constraint("Vertical", 5),
    Sketcher.Constraint("Horizontal", 6),
    Sketcher.Constraint("Vertical", 7),
    Sketcher.Constraint("Horizontal", 0, 2, 3, 2),
    Sketcher.Constraint("DistanceX", 6, 2, 6, 1, 11.8),
    Sketcher.Constraint("DistanceY", 1, 2, 1, 1, 9.8),
    Sketcher.Constraint("DistanceX", 4, 1, 4, 2, 1.45),
    Sketcher.Constraint("DistanceY", 5, 2, 5, 1, 11.25),
    Sketcher.Constraint("DistanceX", 0, 1, 0, 2, 1.445755),
    Sketcher.Constraint("DistanceX", -1, 1, 2, 2, 1.484328),
    Sketcher.Constraint("DistanceY", -1, 1, 0, 2, 8.782275),
])
pocket6 = body.newObject("PartDesign::Pocket", "Pocket005")
pocket6.Profile = sketch15
pocket6.Length = 0.6
pocket6.Reversed = True

doc.recompute()
